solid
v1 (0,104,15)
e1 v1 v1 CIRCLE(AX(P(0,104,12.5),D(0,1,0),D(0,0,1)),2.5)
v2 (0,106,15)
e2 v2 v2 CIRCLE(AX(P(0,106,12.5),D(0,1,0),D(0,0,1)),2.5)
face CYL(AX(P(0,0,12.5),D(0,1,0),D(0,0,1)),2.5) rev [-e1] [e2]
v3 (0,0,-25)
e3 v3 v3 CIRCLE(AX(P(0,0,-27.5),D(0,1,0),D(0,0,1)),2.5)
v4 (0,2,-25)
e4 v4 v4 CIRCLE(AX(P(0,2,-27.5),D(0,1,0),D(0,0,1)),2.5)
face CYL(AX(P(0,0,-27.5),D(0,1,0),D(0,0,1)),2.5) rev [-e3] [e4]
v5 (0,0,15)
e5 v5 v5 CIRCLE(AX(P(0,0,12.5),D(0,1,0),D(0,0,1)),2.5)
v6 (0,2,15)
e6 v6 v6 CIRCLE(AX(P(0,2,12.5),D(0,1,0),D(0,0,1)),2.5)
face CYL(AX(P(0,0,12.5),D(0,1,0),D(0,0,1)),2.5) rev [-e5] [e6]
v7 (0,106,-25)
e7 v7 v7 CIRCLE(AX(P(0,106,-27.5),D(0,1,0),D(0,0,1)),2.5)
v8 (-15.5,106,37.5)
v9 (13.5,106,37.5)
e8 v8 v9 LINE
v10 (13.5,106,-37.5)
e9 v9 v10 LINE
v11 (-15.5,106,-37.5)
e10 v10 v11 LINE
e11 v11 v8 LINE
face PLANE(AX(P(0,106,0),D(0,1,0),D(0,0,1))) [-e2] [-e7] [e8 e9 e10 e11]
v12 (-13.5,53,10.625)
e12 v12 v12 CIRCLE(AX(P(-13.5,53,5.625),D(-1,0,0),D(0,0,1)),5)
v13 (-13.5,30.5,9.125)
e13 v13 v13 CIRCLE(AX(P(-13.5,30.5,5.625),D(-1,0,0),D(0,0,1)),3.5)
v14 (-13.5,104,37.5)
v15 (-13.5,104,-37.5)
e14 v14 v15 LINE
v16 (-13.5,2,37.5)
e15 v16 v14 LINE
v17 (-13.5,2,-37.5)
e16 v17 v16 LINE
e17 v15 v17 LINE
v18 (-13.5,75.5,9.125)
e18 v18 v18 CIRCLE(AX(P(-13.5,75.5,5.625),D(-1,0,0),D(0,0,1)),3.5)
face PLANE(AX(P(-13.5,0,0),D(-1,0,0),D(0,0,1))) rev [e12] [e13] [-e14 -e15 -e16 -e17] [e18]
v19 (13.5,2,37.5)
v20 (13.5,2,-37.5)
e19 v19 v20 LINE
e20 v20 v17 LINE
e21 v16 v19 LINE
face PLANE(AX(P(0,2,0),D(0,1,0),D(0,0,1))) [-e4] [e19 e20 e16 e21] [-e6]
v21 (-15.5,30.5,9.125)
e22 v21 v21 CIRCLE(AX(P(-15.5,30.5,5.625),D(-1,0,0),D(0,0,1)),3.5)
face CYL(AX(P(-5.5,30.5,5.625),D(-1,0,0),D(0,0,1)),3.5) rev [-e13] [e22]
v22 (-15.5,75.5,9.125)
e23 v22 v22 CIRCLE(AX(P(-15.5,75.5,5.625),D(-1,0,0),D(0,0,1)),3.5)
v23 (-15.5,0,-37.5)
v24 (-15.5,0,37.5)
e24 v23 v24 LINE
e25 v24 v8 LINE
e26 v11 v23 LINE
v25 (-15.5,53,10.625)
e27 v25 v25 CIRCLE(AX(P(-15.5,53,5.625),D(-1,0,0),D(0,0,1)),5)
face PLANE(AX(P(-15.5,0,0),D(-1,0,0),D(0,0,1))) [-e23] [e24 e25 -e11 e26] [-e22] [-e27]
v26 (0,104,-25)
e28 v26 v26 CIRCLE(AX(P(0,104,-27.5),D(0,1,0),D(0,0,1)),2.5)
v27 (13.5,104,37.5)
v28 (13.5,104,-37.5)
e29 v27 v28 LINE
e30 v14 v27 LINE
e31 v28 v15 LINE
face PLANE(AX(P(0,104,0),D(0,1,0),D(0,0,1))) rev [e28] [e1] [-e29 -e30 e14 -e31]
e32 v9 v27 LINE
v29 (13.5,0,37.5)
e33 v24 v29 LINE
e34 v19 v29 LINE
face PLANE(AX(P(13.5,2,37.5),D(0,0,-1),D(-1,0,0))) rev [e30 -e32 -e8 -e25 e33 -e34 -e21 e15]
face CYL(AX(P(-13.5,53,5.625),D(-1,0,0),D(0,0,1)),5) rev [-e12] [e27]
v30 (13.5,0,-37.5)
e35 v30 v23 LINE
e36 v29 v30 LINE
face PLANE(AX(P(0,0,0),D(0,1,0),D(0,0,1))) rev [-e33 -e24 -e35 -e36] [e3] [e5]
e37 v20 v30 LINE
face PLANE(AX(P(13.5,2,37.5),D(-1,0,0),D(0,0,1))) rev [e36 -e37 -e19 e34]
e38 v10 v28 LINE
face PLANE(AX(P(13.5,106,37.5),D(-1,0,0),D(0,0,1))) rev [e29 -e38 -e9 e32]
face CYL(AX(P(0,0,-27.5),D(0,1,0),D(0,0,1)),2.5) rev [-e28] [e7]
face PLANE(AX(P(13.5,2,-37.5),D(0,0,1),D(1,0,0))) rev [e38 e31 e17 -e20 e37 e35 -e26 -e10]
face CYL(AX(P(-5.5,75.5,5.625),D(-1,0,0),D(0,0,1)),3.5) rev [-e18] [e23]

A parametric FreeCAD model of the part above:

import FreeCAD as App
import Part
import Sketcher

doc = App.newDocument("Part")
body = doc.addObject("PartDesign::Body", "Body")

# Sketch on XZ plane
sketch1 = body.newObject("Sketcher::SketchObject", "Sketch")
sketch1.AttachmentSupport = (doc.getObject("XZ_Plane"), [""])
sketch1.MapMode = "FlatFace"
sketch1.addGeometry(Part.LineSegment(App.Vector(-13.5, -37.5, 0), App.Vector(-13.5, 37.5, 0)), False)
sketch1.addGeometry(Part.LineSegment(App.Vector(-13.5, 37.5, 0), App.Vector(13.5, 37.5, 0)), False)
sketch1.addGeometry(Part.LineSegment(App.Vector(13.5, 37.5, 0), App.Vector(13.5, -37.5, 0)), False)
sketch1.addGeometry(Part.LineSegment(App.Vector(13.5, -37.5, 0), App.Vector(-13.5, -37.5, 0)), False)
sketch1.addConstraint(Sketcher.Constraint("Coincident", 0, 2, 1, 1))
sketch1.addConstraint(Sketcher.Constraint("Coincident", 1, 2, 2, 1))
sketch1.addConstraint(Sketcher.Constraint("Coincident", 2, 2, 3, 1))
sketch1.addConstraint(Sketcher.Constraint("Coincident", 3, 2, 0, 1))
sketch1.addConstraint(Sketcher.Constraint("Vertical", 0))
sketch1.addConstraint(Sketcher.Constraint("Horizontal", 1))
sketch1.addConstraint(Sketcher.Constraint("Vertical", 2))
sketch1.addConstraint(Sketcher.Constraint("Horizontal", 3))
sketch1.addConstraint(Sketcher.Constraint("Symmetric", 0, 2, 2, 2, -1, 1))
sketch1.addConstraint(Sketcher.Constraint("DistanceX", 1, 1, 1, 2, 27.0))
sketch1.addConstraint(Sketcher.Constraint("DistanceY", 0, 1, 0, 2, 75.0))
pad1 = body.newObject("PartDesign::Pad", "Pad")
pad1.Profile = sketch1
pad1.Length = 2
pad1.Reversed = True

# Sketch on YZ plane
sketch2 = body.newObject("Sketcher::SketchObject", "Sketch001")
sketch2.AttachmentSupport = (doc.getObject("YZ_Plane"), [""])
sketch2.MapMode = "FlatFace"
sketch2.AttachmentOffset = App.Placement(App.Vector(0, 0, -13.5), App.Rotation())
sketch2.addGeometry(Part.LineSegment(App.Vector(104, -37.5, 0), App.Vector(0, -37.5, 0)), False)
sketch2.addGeometry(Part.LineSegment(App.Vector(0, -37.5, 0), App.Vector(0, 37.5, 0)), False)
sketch2.addGeometry(Part.LineSegment(App.Vector(0, 37.5, 0), App.Vector(104, 37.5, 0)), False)
sketch2.addGeometry(Part.LineSegment(App.Vector(104, 37.5, 0), App.Vector(104, -37.5, 0)), False)
sketch2.addConstraint(Sketcher.Constraint("Coincident", 0, 2, 1, 1))
sketch2.addConstraint(Sketcher.Constraint("Coincident", 1, 2, 2, 1))
sketch2.addConstraint(Sketcher.Constraint("Coincident", 2, 2, 3, 1))
sketch2.addConstraint(Sketcher.Constraint("Coincident", 3, 2, 0, 1))
sketch2.addConstraint(Sketcher.Constraint("Horizontal", 0))
sketch2.addConstraint(Sketcher.Constraint("Vertical", 1))
sketch2.addConstraint(Sketcher.Constraint("Horizontal", 2))
sketch2.addConstraint(Sketcher.Constraint("Vertical", 3))
sketch2.addConstraint(Sketcher.Constraint("Symmetric", 0, 2, 1, 2, -1, 1))
sketch2.addConstraint(Sketcher.Constraint("DistanceX", 0, 2, 0, 1, 104.0))
sketch2.addConstraint(Sketcher.Constraint("DistanceY", 1, 1, 1, 2, 75.0))
pad2 = body.newObject("PartDesign::Pad", "Pad001")
pad2.Profile = sketch2
pad2.Length = 2
pad2.Reversed = True

# Sketch on XZ plane
sketch3 = body.newObject("Sketcher::SketchObject", "Sketch002")
sketch3.AttachmentSupport = (doc.getObject("XZ_Plane"), [""])
sketch3.MapMode = "FlatFace"
sketch3.AttachmentOffset = App.Placement(App.Vector(0, 0, -104), App.Rotation())
sketch3.addGeometry(Part.LineSegment(App.Vector(-15.5, -37.5, 0), App.Vector(-15.5, 37.5, 0)), False)
sketch3.addGeometry(Part.LineSegment(App.Vector(-15.5, 37.5, 0), App.Vector(13.5, 37.5, 0)), False)
sketch3.addGeometry(Part.LineSegment(App.Vector(13.5, 37.5, 0), App.Vector(13.5, -37.5, 0)), False)
sketch3.addGeometry(Part.LineSegment(App.Vector(13.5, -37.5, 0), App.Vector(-15.5, -37.5, 0)), False)
sketch3.addConstraint(Sketcher.Constraint("Coincident", 0, 2, 1, 1))
sketch3.addConstraint(Sketcher.Constraint("Coincident", 1, 2, 2, 1))
sketch3.addConstraint(Sketcher.Constraint("Coincident", 2, 2, 3, 1))
sketch3.addConstraint(Sketcher.Constraint("Coincident", 3, 2, 0, 1))
sketch3.addConstraint(Sketcher.Constraint("Vertical", 0))
sketch3.addConstraint(Sketcher.Constraint("Horizontal", 1))
sketch3.addConstraint(Sketcher.Constraint("Vertical", 2))
sketch3.addConstraint(Sketcher.Constraint("Horizontal", 3))
sketch3.addConstraint(Sketcher.Constraint("DistanceX", 1, 1, 1, 2, 29.0))
sketch3.addConstraint(Sketcher.Constraint("DistanceY", 0, 1, 0, 2, 75.0))
sketch3.addConstraint(Sketcher.Constraint("DistanceX", 0, 2, -1, 1, 15.5))
sketch3.addConstraint(Sketcher.Constraint("DistanceY", -1, 1, 0, 2, 37.5))
pad3 = body.newObject("PartDesign::Pad", "Pad002")
pad3.Profile = sketch3
pad3.Length = 2
pad3.Reversed = True

# Sketch on YZ plane
sketch4 = body.newObject("Sketcher::SketchObject", "Sketch003")
sketch4.AttachmentSupport = (doc.getObject("YZ_Plane"), [""])
sketch4.MapMode = "FlatFace"
sketch4.AttachmentOffset = App.Placement(App.Vector(0, 0, -15.5), App.Rotation())
sketch4.addGeometry(Part.Circle(App.Vector(53, 5.625, 0), App.Vector(0, 0, 1), 5), False)
sketch4.addConstraint(Sketcher.Constraint("Diameter", 0, 10.0))
sketch4.addConstraint(Sketcher.Constraint("DistanceX", -1, 1, 0, 3, 53.0))
sketch4.addConstraint(Sketcher.Constraint("DistanceY", -1, 1, 0, 3, 5.625))
pocket1 = body.newObject("PartDesign::Pocket", "Pocket")
pocket1.Profile = sketch4
pocket1.Length = 2
pocket1.Reversed = True

# Sketch on XZ plane
sketch5 = body.newObject("Sketcher::SketchObject", "Sketch004")
sketch5.AttachmentSupport = (doc.getObject("XZ_Plane"), [""])
sketch5.MapMode = "FlatFace"
sketch5.AttachmentOffset = App.Placement(App.Vector(0, 0, -106), App.Rotation())
sketch5.addGeometry(Part.Circle(App.Vector(0, -27.5, 0), App.Vector(0, 0, 1), 2.5), False)
sketch5.addGeometry(Part.Circle(App.Vector(0, 12.5, 0), App.Vector(0, 0, 1), 2.5), False)
sketch5.addConstraint(Sketcher.Constraint("Equal", 0, 1))
sketch5.addConstraint(Sketcher.Constraint("PointOnObject", 0, 3, -2))
sketch5.addConstraint(Sketcher.Constraint("PointOnObject", 1, 3, -2))
sketch5.addConstraint(Sketcher.Constraint("Diameter", 0, 5.0))
sketch5.addConstraint(Sketcher.Constraint("DistanceY", 0, 3, 1, 3, 40.0))
sketch5.addConstraint(Sketcher.Constraint("DistanceY", 0, 3, -1, 1, 27.5))
pocket2 = body.newObject("PartDesign::Pocket", "Pocket001")
pocket2.Profile = sketch5
pocket2.Type = "ThroughAll"
pocket2.Midplane = True

# Sketch on YZ plane
sketch6 = body.newObject("Sketcher::SketchObject", "Sketch005")
sketch6.AttachmentSupport = (doc.getObject("YZ_Plane"), [""])
sketch6.MapMode = "FlatFace"
sketch6.AttachmentOffset = App.Placement(App.Vector(0, 0, -15.5), App.Rotation())
sketch6.addGeometry(Part.Circle(App.Vector(75.5, 5.625, 0), App.Vector(0, 0, 1), 3.5), False)
sketch6.addGeometry(Part.Circle(App.Vector(30.5, 5.625, 0), App.Vector(0, 0, 1), 3.5), False)
sketch6.addConstraint(Sketcher.Constraint("Equal", 0, 1))
sketch6.addConstraint(Sketcher.Constraint("Horizontal", 0, 3, 1, 3))
sketch6.addConstraint(Sketcher.Constraint("Diameter", 0, 7.0))
sketch6.addConstraint(Sketcher.Constraint("DistanceX", 1, 3, 0, 3, 45.0))
sketch6.addConstraint(Sketcher.Constraint("DistanceX", -1, 1, 0, 3, 75.5))
sketch6.addConstraint(Sketcher.Constraint("DistanceY", -1, 1, 0, 3, 5.625))
pocket3 = body.newObject("PartDesign::Pocket", "Pocket002")
pocket3.Profile = sketch6
pocket3.Length = 10
pocket3.Reversed = True

doc.recompute()
